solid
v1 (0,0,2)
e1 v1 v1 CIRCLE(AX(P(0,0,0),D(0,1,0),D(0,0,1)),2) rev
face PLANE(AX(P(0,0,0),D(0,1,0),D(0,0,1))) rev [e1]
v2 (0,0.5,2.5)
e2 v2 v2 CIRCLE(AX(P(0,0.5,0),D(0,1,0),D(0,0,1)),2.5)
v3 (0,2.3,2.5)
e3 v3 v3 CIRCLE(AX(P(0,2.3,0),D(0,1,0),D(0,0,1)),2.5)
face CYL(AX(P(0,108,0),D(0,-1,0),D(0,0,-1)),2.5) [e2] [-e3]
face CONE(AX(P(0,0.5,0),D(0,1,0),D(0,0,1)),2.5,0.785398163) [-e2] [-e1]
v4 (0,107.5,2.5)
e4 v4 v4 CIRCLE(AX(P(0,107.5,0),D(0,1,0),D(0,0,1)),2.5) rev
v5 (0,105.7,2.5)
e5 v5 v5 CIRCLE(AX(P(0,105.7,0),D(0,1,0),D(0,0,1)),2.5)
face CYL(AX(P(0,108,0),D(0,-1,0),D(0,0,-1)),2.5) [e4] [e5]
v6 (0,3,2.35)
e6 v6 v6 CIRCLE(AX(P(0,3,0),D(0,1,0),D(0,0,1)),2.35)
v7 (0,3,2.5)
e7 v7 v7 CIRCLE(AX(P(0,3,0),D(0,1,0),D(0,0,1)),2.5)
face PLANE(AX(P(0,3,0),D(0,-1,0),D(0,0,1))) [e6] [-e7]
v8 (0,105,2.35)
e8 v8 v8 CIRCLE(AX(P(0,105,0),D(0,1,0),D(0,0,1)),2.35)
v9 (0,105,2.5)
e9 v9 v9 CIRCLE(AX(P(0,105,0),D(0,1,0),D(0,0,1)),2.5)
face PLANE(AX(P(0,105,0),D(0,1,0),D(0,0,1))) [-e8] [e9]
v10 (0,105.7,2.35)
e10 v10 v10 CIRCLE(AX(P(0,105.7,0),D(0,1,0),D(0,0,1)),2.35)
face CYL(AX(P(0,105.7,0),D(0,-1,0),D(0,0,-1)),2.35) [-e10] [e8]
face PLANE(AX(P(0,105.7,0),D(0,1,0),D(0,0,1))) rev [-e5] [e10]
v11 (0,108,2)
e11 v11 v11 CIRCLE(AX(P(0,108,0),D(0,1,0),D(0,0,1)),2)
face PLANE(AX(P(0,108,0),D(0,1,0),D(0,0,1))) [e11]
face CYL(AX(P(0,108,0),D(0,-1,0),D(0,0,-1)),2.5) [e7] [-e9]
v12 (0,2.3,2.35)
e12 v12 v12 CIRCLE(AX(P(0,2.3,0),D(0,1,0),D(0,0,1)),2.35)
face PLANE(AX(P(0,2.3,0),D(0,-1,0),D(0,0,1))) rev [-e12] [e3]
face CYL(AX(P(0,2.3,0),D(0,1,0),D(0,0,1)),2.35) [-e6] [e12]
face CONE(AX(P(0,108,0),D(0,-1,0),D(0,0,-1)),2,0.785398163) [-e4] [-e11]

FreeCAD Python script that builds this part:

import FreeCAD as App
import Part
import Sketcher


def edges_at(feature, points):
    """Names of the edges that pass closest to the given points."""
    edges = feature.Shape.Edges
    near = lambda p: min(range(len(edges)), key=lambda i: edges[i].distToShape(Part.Vertex(*p))[0])
    return sorted({f"Edge{near(p) + 1}" for p in points})

doc = App.newDocument("Part")
body = doc.addObject("PartDesign::Body", "Body")

# Sketch on XZ plane
sketch1 = body.newObject("Sketcher::SketchObject", "Sketch")
sketch1.AttachmentSupport = (doc.getObject("XZ_Plane"), [""])
sketch1.MapMode = "FlatFace"
sketch1.addGeometry(Part.Circle(App.Vector(0, 0, 0), App.Vector(0, 0, 1), 2.5), False)
sketch1.addConstraint([
    Sketcher.Constraint("Coincident", 0, 3, -1, 1),
    Sketcher.Constraint("Diameter", 0, 5.0),
])
pad1 = body.newObject("PartDesign::Pad", "Pad")
pad1.Profile = sketch1
pad1.Length = 108
pad1.Reversed = True
doc.recompute()

chamfer = body.newObject("PartDesign::Chamfer", "Chamfer")
chamfer.Base = (pad1, edges_at(pad1, [(0, 0, -2.5), (0, 108, -2.5)]))
chamfer.Size = 0.5

# Sketch on XZ plane
sketch2 = body.newObject("Sketcher::SketchObject", "Sketch001")
sketch2.AttachmentSupport = (doc.getObject("XZ_Plane"), [""])
sketch2.MapMode = "FlatFace"
sketch2.AttachmentOffset = App.Placement(App.Vector(0, 0, -105), App.Rotation())
sketch2.addGeometry([
    Part.Circle(App.Vector(0, 0, 0), App.Vector(0, 0, 1), 2.5),
    Part.Circle(App.Vector(0, 0, 0), App.Vector(0, 0, 1), 2.4),
], False)
sketch2.addConstraint([
    Sketcher.Constraint("Coincident", 0, 3, -1, 1),
    Sketcher.Constraint("Coincident", 1, 3, -1, 1),
    Sketcher.Constraint("Diameter", 0, 5.0),
    Sketcher.Constraint("Diameter", 1, 4.7),
])
pocket1 = body.newObject("PartDesign::Pocket", "Pocket")
pocket1.Profile = sketch2
pocket1.Length = 0.7
doc.recompute()

datumplane = body.newObject("PartDesign::Plane", "DatumPlane")
datumplane.AttachmentSupport = (doc.getObject("XZ_Plane"), [""])
datumplane.MapMode = "FlatFace"
datumplane.AttachmentOffset = App.Placement(App.Vector(0, 0, -54), App.Rotation())
mirrored = body.newObject("PartDesign::Mirrored", "Mirrored")
mirrored.Originals = [pocket1]
mirrored.MirrorPlane = (datumplane, [""])
body.Tip = mirrored

doc.recompute()
